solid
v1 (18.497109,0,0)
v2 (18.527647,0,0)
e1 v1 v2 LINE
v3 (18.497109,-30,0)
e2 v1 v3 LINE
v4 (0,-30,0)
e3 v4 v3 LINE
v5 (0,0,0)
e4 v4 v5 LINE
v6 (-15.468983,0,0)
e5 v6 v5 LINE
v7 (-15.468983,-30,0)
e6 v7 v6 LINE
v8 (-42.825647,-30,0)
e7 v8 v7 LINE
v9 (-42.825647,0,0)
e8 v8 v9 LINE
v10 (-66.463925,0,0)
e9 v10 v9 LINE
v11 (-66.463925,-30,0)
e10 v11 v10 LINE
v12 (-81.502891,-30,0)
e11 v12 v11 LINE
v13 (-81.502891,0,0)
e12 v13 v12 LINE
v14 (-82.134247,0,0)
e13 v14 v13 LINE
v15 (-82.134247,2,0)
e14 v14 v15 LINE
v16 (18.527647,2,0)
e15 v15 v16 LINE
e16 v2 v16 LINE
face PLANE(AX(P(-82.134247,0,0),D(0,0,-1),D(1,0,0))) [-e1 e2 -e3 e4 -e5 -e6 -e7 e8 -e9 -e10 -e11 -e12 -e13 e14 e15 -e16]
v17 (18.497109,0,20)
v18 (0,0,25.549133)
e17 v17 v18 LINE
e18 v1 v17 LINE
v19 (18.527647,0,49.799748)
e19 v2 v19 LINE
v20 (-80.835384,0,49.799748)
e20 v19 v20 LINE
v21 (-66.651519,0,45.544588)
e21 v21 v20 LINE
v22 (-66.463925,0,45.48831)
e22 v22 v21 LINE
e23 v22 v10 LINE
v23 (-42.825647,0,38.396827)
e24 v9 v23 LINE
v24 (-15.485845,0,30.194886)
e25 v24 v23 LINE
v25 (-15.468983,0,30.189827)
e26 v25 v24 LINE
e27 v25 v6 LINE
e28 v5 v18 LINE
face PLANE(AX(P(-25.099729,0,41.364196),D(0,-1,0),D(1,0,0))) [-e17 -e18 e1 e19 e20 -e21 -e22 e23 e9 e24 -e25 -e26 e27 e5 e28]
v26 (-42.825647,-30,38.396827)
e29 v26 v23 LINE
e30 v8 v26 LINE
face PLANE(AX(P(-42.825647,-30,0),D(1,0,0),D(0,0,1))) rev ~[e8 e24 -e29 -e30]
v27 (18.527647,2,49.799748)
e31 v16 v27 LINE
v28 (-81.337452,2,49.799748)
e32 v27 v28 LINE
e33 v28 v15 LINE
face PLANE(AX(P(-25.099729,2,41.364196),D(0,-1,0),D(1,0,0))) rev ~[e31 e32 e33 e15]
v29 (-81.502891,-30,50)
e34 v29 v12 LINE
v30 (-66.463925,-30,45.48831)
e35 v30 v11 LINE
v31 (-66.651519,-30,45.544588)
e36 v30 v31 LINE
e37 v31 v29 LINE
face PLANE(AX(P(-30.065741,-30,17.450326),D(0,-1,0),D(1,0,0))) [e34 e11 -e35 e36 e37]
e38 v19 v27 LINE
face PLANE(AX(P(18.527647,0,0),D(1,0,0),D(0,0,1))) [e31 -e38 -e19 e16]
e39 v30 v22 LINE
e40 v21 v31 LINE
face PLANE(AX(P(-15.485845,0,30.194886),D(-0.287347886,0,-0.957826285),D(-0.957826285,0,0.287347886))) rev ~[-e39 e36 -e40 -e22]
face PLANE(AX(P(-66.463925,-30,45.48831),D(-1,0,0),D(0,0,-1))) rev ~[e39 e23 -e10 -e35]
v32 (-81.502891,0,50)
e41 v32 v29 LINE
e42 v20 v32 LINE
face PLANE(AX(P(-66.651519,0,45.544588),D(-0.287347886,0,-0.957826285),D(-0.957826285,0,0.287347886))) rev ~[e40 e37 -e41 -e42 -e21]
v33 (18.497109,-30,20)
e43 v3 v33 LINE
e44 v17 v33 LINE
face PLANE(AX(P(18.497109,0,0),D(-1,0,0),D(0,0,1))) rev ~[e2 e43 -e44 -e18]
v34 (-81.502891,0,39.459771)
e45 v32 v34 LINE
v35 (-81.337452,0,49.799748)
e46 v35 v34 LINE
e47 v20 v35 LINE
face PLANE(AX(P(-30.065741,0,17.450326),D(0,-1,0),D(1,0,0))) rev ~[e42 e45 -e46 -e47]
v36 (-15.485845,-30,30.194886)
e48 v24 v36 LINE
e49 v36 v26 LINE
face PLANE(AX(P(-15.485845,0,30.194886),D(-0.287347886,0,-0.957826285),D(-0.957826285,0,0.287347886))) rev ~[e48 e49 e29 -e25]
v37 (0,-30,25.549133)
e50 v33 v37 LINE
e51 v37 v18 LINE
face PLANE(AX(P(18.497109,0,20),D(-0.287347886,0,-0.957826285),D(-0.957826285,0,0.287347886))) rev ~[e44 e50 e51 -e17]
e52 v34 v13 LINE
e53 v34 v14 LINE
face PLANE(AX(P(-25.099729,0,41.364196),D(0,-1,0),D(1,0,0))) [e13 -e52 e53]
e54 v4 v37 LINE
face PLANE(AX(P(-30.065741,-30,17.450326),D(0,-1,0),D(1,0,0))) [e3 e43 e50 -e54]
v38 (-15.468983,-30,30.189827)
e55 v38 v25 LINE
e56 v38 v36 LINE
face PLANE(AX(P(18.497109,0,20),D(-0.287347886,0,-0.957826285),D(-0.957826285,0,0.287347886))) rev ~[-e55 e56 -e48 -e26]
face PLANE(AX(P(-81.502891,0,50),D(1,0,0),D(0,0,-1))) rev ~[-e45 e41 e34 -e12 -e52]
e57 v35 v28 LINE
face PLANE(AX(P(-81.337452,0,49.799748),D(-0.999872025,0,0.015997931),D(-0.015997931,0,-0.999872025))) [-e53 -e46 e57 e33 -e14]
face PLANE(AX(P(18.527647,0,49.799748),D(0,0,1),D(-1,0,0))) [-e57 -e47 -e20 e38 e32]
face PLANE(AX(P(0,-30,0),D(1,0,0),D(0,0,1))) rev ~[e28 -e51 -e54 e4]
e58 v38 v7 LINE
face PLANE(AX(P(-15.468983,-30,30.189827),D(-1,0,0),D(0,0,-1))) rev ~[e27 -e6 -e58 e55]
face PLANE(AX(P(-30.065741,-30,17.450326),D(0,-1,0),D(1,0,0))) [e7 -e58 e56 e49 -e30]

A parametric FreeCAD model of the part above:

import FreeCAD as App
import Part
import Sketcher
from FreeCAD import Vector
Q = App.Units.Quantity

doc = App.newDocument("Part")
params = doc.addObject("Spreadsheet::Sheet", "Params")
for row, (alias, value) in enumerate([
    ("sketch1_width", "100 mm"),
    ("sketch1_height", "50 mm"),
    ("sketch1_height2", "20 mm"),
    ("pad1_length", "30 mm"),
    ("pad2_length", "2 mm"),
], start=1):
    params.set(f"A{row}", alias)
    params.set(f"B{row}", "=" + value)
    params.setAlias(f"B{row}", alias)

body = doc.addObject("PartDesign::Body", "Body")
body.AllowCompound = True

sketch1 = body.newObject("Sketcher::SketchObject", "Sketch")
sketch1.AttachmentSupport = (doc.getObject("XZ_Plane"), [""])
sketch1.MapMode = "FlatFace"
sketch1.addGeometry(Part.LineSegment(Vector(-15, 30, 0), Vector(-67, 46, 0)), False)
sketch1.addGeometry(Part.LineSegment(Vector(-67, 46, 0), Vector(-82, 50, 0)), False)
sketch1.addGeometry(Part.LineSegment(Vector(-82, 50, 0), Vector(-82, 0, 0)), False)
sketch1.addGeometry(Part.LineSegment(Vector(-82, 0, 0), Vector(18, 0, 0)), False)
sketch1.addGeometry(Part.LineSegment(Vector(18, 0, 0), Vector(18, 20, 0)), False)
sketch1.addGeometry(Part.LineSegment(Vector(18, 20, 0), Vector(-15, 30, 0)), False)
sketch1.addConstraint(Sketcher.Constraint("Coincident", 0, 2, 1, 1))
sketch1.addConstraint(Sketcher.Constraint("Coincident", 1, 2, 2, 1))
sketch1.addConstraint(Sketcher.Constraint("Coincident", 2, 2, 3, 1))
sketch1.addConstraint(Sketcher.Constraint("Coincident", 3, 2, 4, 1))
sketch1.addConstraint(Sketcher.Constraint("Coincident", 4, 2, 5, 1))
sketch1.addConstraint(Sketcher.Constraint("Coincident", 5, 2, 0, 1))
sketch1.addConstraint(Sketcher.Constraint("Vertical", 2))
sketch1.addConstraint(Sketcher.Constraint("Horizontal", 3))
sketch1.addConstraint(Sketcher.Constraint("Vertical", 4))
sketch1.addConstraint(Sketcher.Constraint("PointOnObject", 2, 2, -1))
sketch1.addConstraint(Sketcher.Constraint("Parallel", 0, 1))
sketch1.addConstraint(Sketcher.Constraint("Parallel", 1, 5))
sketch1.addConstraint(Sketcher.Constraint("DistanceX", 3, 1, 3, 2, Q("100 mm")))
sketch1.addConstraint(Sketcher.Constraint("DistanceY", 2, 2, 2, 1, Q("50 mm")))
sketch1.addConstraint(Sketcher.Constraint("DistanceY", 4, 1, 4, 2, Q("20 mm")))
sketch1.addConstraint(Sketcher.Constraint("Distance", 1, Q("15.505288 mm")))
sketch1.addConstraint(Sketcher.Constraint("DistanceX", 0, 2, -1, 1, Q("66.651519 mm")))
sketch1.addConstraint(Sketcher.Constraint("Distance", 0, Q("53.418532 mm")))
sketch1.setExpression("Constraints[12]", "Params.sketch1_width")
sketch1.setExpression("Constraints[13]", "Params.sketch1_height")
sketch1.setExpression("Constraints[14]", "Params.sketch1_height2")
pad1 = body.newObject("PartDesign::Pad", "Pad")
pad1.Profile = sketch1
pad1.setExpression("Length", "Params.pad1_length")

sketch2 = body.newObject("Sketcher::SketchObject", "Sketch001")
sketch2.AttachmentSupport = (doc.getObject("XZ_Plane"), [""])
sketch2.MapMode = "FlatFace"
sketch2.AttachmentOffset = App.Placement(Vector(0, 0, 30), App.Rotation())
sketch2.addGeometry(Part.LineSegment(Vector(-66, 45, 0), Vector(-66, 0, 0)), False)
sketch2.addGeometry(Part.LineSegment(Vector(-66, 0, 0), Vector(-43, 0, 0)), False)
sketch2.addGeometry(Part.LineSegment(Vector(-43, 0, 0), Vector(-43, 38, 0)), False)
sketch2.addGeometry(Part.LineSegment(Vector(-43, 38, 0), Vector(-66, 45, 0)), False)
sketch2.addGeometry(Part.LineSegment(Vector(-15, 30, 0), Vector(-15, 0, 0)), False)
sketch2.addGeometry(Part.LineSegment(Vector(-15, 0, 0), Vector(0, 0, 0)), False)
sketch2.addGeometry(Part.LineSegment(Vector(0, 0, 0), Vector(0, 26, 0)), False)
sketch2.addGeometry(Part.LineSegment(Vector(0, 26, 0), Vector(-15, 30, 0)), False)
sketch2.addConstraint(Sketcher.Constraint("Coincident", 0, 2, 1, 1))
sketch2.addConstraint(Sketcher.Constraint("Coincident", 1, 2, 2, 1))
sketch2.addConstraint(Sketcher.Constraint("Coincident", 2, 2, 3, 1))
sketch2.addConstraint(Sketcher.Constraint("Coincident", 3, 2, 0, 1))
sketch2.addConstraint(Sketcher.Constraint("Coincident", 4, 2, 5, 1))
sketch2.addConstraint(Sketcher.Constraint("Coincident", 5, 2, 6, 1))
sketch2.addConstraint(Sketcher.Constraint("Coincident", 6, 2, 7, 1))
sketch2.addConstraint(Sketcher.Constraint("Coincident", 7, 2, 4, 1))
sketch2.addConstraint(Sketcher.Constraint("Vertical", 0))
sketch2.addConstraint(Sketcher.Constraint("Horizontal", 1))
sketch2.addConstraint(Sketcher.Constraint("Vertical", 2))
sketch2.addConstraint(Sketcher.Constraint("Vertical", 4))
sketch2.addConstraint(Sketcher.Constraint("Horizontal", 5))
sketch2.addConstraint(Sketcher.Constraint("Vertical", 6))
sketch2.addConstraint(Sketcher.Constraint("Coincident", 5, 2, -1, 1))
sketch2.addConstraint(Sketcher.Constraint("PointOnObject", 0, 2, -1))
sketch2.addConstraint(Sketcher.Constraint("Parallel", 3, 7))
sketch2.addConstraint(Sketcher.Constraint("DistanceY", 7, 2, 2, 2, Q("8.206999 mm")))
sketch2.addConstraint(Sketcher.Constraint("DistanceX", 1, 1, 1, 2, Q("23.638278 mm")))
sketch2.addConstraint(Sketcher.Constraint("DistanceY", 0, 2, 0, 1, Q("45.48831 mm")))
sketch2.addConstraint(Sketcher.Constraint("DistanceX", 5, 1, 5, 2, Q("15.468983 mm")))
sketch2.addConstraint(Sketcher.Constraint("DistanceY", 2, 1, 2, 2, Q("38.396827 mm")))
sketch2.addConstraint(Sketcher.Constraint("DistanceX", 0, 2, 4, 2, Q("50.994942 mm")))
pocket1 = body.newObject("PartDesign::Pocket", "Pocket")
pocket1.Profile = sketch2
pocket1.Type = "ThroughAll"

sketch3 = body.newObject("Sketcher::SketchObject", "Sketch002")
sketch3.AttachmentSupport = (doc.getObject("XZ_Plane"), [""])
sketch3.MapMode = "FlatFace"
sketch3.addGeometry(Part.LineSegment(Vector(19, 50, 0), Vector(-81, 50, 0)), False)
sketch3.addGeometry(Part.LineSegment(Vector(-81, 50, 0), Vector(-82, 0, 0)), False)
sketch3.addGeometry(Part.LineSegment(Vector(-82, 0, 0), Vector(19, 0, 0)), False)
sketch3.addGeometry(Part.LineSegment(Vector(19, 0, 0), Vector(19, 50, 0)), False)
sketch3.addConstraint(Sketcher.Constraint("Coincident", 0, 2, 1, 1))
sketch3.addConstraint(Sketcher.Constraint("Coincident", 1, 2, 2, 1))
sketch3.addConstraint(Sketcher.Constraint("Coincident", 2, 2, 3, 1))
sketch3.addConstraint(Sketcher.Constraint("Coincident", 3, 2, 0, 1))
sketch3.addConstraint(Sketcher.Constraint("Horizontal", 0))
sketch3.addConstraint(Sketcher.Constraint("Horizontal", 2))
sketch3.addConstraint(Sketcher.Constraint("Vertical", 3))
sketch3.addConstraint(Sketcher.Constraint("PointOnObject", 1, 2, -1))
sketch3.addConstraint(Sketcher.Constraint("DistanceX", 0, 2, 0, 1, Q("99.865099 mm")))
sketch3.addConstraint(Sketcher.Constraint("Distance", 1, Q("49.806122 mm")))
sketch3.addConstraint(Sketcher.Constraint("DistanceX", 2, 1, 2, 2, Q("100.661894 mm")))
sketch3.addConstraint(Sketcher.Constraint("DistanceX", 0, 2, -1, 1, Q("81.337452 mm")))
pad2 = body.newObject("PartDesign::Pad", "Pad001")
pad2.Profile = sketch3
pad2.setExpression("Length", "Params.pad2_length")
pad2.Reversed = True

doc.recompute()
